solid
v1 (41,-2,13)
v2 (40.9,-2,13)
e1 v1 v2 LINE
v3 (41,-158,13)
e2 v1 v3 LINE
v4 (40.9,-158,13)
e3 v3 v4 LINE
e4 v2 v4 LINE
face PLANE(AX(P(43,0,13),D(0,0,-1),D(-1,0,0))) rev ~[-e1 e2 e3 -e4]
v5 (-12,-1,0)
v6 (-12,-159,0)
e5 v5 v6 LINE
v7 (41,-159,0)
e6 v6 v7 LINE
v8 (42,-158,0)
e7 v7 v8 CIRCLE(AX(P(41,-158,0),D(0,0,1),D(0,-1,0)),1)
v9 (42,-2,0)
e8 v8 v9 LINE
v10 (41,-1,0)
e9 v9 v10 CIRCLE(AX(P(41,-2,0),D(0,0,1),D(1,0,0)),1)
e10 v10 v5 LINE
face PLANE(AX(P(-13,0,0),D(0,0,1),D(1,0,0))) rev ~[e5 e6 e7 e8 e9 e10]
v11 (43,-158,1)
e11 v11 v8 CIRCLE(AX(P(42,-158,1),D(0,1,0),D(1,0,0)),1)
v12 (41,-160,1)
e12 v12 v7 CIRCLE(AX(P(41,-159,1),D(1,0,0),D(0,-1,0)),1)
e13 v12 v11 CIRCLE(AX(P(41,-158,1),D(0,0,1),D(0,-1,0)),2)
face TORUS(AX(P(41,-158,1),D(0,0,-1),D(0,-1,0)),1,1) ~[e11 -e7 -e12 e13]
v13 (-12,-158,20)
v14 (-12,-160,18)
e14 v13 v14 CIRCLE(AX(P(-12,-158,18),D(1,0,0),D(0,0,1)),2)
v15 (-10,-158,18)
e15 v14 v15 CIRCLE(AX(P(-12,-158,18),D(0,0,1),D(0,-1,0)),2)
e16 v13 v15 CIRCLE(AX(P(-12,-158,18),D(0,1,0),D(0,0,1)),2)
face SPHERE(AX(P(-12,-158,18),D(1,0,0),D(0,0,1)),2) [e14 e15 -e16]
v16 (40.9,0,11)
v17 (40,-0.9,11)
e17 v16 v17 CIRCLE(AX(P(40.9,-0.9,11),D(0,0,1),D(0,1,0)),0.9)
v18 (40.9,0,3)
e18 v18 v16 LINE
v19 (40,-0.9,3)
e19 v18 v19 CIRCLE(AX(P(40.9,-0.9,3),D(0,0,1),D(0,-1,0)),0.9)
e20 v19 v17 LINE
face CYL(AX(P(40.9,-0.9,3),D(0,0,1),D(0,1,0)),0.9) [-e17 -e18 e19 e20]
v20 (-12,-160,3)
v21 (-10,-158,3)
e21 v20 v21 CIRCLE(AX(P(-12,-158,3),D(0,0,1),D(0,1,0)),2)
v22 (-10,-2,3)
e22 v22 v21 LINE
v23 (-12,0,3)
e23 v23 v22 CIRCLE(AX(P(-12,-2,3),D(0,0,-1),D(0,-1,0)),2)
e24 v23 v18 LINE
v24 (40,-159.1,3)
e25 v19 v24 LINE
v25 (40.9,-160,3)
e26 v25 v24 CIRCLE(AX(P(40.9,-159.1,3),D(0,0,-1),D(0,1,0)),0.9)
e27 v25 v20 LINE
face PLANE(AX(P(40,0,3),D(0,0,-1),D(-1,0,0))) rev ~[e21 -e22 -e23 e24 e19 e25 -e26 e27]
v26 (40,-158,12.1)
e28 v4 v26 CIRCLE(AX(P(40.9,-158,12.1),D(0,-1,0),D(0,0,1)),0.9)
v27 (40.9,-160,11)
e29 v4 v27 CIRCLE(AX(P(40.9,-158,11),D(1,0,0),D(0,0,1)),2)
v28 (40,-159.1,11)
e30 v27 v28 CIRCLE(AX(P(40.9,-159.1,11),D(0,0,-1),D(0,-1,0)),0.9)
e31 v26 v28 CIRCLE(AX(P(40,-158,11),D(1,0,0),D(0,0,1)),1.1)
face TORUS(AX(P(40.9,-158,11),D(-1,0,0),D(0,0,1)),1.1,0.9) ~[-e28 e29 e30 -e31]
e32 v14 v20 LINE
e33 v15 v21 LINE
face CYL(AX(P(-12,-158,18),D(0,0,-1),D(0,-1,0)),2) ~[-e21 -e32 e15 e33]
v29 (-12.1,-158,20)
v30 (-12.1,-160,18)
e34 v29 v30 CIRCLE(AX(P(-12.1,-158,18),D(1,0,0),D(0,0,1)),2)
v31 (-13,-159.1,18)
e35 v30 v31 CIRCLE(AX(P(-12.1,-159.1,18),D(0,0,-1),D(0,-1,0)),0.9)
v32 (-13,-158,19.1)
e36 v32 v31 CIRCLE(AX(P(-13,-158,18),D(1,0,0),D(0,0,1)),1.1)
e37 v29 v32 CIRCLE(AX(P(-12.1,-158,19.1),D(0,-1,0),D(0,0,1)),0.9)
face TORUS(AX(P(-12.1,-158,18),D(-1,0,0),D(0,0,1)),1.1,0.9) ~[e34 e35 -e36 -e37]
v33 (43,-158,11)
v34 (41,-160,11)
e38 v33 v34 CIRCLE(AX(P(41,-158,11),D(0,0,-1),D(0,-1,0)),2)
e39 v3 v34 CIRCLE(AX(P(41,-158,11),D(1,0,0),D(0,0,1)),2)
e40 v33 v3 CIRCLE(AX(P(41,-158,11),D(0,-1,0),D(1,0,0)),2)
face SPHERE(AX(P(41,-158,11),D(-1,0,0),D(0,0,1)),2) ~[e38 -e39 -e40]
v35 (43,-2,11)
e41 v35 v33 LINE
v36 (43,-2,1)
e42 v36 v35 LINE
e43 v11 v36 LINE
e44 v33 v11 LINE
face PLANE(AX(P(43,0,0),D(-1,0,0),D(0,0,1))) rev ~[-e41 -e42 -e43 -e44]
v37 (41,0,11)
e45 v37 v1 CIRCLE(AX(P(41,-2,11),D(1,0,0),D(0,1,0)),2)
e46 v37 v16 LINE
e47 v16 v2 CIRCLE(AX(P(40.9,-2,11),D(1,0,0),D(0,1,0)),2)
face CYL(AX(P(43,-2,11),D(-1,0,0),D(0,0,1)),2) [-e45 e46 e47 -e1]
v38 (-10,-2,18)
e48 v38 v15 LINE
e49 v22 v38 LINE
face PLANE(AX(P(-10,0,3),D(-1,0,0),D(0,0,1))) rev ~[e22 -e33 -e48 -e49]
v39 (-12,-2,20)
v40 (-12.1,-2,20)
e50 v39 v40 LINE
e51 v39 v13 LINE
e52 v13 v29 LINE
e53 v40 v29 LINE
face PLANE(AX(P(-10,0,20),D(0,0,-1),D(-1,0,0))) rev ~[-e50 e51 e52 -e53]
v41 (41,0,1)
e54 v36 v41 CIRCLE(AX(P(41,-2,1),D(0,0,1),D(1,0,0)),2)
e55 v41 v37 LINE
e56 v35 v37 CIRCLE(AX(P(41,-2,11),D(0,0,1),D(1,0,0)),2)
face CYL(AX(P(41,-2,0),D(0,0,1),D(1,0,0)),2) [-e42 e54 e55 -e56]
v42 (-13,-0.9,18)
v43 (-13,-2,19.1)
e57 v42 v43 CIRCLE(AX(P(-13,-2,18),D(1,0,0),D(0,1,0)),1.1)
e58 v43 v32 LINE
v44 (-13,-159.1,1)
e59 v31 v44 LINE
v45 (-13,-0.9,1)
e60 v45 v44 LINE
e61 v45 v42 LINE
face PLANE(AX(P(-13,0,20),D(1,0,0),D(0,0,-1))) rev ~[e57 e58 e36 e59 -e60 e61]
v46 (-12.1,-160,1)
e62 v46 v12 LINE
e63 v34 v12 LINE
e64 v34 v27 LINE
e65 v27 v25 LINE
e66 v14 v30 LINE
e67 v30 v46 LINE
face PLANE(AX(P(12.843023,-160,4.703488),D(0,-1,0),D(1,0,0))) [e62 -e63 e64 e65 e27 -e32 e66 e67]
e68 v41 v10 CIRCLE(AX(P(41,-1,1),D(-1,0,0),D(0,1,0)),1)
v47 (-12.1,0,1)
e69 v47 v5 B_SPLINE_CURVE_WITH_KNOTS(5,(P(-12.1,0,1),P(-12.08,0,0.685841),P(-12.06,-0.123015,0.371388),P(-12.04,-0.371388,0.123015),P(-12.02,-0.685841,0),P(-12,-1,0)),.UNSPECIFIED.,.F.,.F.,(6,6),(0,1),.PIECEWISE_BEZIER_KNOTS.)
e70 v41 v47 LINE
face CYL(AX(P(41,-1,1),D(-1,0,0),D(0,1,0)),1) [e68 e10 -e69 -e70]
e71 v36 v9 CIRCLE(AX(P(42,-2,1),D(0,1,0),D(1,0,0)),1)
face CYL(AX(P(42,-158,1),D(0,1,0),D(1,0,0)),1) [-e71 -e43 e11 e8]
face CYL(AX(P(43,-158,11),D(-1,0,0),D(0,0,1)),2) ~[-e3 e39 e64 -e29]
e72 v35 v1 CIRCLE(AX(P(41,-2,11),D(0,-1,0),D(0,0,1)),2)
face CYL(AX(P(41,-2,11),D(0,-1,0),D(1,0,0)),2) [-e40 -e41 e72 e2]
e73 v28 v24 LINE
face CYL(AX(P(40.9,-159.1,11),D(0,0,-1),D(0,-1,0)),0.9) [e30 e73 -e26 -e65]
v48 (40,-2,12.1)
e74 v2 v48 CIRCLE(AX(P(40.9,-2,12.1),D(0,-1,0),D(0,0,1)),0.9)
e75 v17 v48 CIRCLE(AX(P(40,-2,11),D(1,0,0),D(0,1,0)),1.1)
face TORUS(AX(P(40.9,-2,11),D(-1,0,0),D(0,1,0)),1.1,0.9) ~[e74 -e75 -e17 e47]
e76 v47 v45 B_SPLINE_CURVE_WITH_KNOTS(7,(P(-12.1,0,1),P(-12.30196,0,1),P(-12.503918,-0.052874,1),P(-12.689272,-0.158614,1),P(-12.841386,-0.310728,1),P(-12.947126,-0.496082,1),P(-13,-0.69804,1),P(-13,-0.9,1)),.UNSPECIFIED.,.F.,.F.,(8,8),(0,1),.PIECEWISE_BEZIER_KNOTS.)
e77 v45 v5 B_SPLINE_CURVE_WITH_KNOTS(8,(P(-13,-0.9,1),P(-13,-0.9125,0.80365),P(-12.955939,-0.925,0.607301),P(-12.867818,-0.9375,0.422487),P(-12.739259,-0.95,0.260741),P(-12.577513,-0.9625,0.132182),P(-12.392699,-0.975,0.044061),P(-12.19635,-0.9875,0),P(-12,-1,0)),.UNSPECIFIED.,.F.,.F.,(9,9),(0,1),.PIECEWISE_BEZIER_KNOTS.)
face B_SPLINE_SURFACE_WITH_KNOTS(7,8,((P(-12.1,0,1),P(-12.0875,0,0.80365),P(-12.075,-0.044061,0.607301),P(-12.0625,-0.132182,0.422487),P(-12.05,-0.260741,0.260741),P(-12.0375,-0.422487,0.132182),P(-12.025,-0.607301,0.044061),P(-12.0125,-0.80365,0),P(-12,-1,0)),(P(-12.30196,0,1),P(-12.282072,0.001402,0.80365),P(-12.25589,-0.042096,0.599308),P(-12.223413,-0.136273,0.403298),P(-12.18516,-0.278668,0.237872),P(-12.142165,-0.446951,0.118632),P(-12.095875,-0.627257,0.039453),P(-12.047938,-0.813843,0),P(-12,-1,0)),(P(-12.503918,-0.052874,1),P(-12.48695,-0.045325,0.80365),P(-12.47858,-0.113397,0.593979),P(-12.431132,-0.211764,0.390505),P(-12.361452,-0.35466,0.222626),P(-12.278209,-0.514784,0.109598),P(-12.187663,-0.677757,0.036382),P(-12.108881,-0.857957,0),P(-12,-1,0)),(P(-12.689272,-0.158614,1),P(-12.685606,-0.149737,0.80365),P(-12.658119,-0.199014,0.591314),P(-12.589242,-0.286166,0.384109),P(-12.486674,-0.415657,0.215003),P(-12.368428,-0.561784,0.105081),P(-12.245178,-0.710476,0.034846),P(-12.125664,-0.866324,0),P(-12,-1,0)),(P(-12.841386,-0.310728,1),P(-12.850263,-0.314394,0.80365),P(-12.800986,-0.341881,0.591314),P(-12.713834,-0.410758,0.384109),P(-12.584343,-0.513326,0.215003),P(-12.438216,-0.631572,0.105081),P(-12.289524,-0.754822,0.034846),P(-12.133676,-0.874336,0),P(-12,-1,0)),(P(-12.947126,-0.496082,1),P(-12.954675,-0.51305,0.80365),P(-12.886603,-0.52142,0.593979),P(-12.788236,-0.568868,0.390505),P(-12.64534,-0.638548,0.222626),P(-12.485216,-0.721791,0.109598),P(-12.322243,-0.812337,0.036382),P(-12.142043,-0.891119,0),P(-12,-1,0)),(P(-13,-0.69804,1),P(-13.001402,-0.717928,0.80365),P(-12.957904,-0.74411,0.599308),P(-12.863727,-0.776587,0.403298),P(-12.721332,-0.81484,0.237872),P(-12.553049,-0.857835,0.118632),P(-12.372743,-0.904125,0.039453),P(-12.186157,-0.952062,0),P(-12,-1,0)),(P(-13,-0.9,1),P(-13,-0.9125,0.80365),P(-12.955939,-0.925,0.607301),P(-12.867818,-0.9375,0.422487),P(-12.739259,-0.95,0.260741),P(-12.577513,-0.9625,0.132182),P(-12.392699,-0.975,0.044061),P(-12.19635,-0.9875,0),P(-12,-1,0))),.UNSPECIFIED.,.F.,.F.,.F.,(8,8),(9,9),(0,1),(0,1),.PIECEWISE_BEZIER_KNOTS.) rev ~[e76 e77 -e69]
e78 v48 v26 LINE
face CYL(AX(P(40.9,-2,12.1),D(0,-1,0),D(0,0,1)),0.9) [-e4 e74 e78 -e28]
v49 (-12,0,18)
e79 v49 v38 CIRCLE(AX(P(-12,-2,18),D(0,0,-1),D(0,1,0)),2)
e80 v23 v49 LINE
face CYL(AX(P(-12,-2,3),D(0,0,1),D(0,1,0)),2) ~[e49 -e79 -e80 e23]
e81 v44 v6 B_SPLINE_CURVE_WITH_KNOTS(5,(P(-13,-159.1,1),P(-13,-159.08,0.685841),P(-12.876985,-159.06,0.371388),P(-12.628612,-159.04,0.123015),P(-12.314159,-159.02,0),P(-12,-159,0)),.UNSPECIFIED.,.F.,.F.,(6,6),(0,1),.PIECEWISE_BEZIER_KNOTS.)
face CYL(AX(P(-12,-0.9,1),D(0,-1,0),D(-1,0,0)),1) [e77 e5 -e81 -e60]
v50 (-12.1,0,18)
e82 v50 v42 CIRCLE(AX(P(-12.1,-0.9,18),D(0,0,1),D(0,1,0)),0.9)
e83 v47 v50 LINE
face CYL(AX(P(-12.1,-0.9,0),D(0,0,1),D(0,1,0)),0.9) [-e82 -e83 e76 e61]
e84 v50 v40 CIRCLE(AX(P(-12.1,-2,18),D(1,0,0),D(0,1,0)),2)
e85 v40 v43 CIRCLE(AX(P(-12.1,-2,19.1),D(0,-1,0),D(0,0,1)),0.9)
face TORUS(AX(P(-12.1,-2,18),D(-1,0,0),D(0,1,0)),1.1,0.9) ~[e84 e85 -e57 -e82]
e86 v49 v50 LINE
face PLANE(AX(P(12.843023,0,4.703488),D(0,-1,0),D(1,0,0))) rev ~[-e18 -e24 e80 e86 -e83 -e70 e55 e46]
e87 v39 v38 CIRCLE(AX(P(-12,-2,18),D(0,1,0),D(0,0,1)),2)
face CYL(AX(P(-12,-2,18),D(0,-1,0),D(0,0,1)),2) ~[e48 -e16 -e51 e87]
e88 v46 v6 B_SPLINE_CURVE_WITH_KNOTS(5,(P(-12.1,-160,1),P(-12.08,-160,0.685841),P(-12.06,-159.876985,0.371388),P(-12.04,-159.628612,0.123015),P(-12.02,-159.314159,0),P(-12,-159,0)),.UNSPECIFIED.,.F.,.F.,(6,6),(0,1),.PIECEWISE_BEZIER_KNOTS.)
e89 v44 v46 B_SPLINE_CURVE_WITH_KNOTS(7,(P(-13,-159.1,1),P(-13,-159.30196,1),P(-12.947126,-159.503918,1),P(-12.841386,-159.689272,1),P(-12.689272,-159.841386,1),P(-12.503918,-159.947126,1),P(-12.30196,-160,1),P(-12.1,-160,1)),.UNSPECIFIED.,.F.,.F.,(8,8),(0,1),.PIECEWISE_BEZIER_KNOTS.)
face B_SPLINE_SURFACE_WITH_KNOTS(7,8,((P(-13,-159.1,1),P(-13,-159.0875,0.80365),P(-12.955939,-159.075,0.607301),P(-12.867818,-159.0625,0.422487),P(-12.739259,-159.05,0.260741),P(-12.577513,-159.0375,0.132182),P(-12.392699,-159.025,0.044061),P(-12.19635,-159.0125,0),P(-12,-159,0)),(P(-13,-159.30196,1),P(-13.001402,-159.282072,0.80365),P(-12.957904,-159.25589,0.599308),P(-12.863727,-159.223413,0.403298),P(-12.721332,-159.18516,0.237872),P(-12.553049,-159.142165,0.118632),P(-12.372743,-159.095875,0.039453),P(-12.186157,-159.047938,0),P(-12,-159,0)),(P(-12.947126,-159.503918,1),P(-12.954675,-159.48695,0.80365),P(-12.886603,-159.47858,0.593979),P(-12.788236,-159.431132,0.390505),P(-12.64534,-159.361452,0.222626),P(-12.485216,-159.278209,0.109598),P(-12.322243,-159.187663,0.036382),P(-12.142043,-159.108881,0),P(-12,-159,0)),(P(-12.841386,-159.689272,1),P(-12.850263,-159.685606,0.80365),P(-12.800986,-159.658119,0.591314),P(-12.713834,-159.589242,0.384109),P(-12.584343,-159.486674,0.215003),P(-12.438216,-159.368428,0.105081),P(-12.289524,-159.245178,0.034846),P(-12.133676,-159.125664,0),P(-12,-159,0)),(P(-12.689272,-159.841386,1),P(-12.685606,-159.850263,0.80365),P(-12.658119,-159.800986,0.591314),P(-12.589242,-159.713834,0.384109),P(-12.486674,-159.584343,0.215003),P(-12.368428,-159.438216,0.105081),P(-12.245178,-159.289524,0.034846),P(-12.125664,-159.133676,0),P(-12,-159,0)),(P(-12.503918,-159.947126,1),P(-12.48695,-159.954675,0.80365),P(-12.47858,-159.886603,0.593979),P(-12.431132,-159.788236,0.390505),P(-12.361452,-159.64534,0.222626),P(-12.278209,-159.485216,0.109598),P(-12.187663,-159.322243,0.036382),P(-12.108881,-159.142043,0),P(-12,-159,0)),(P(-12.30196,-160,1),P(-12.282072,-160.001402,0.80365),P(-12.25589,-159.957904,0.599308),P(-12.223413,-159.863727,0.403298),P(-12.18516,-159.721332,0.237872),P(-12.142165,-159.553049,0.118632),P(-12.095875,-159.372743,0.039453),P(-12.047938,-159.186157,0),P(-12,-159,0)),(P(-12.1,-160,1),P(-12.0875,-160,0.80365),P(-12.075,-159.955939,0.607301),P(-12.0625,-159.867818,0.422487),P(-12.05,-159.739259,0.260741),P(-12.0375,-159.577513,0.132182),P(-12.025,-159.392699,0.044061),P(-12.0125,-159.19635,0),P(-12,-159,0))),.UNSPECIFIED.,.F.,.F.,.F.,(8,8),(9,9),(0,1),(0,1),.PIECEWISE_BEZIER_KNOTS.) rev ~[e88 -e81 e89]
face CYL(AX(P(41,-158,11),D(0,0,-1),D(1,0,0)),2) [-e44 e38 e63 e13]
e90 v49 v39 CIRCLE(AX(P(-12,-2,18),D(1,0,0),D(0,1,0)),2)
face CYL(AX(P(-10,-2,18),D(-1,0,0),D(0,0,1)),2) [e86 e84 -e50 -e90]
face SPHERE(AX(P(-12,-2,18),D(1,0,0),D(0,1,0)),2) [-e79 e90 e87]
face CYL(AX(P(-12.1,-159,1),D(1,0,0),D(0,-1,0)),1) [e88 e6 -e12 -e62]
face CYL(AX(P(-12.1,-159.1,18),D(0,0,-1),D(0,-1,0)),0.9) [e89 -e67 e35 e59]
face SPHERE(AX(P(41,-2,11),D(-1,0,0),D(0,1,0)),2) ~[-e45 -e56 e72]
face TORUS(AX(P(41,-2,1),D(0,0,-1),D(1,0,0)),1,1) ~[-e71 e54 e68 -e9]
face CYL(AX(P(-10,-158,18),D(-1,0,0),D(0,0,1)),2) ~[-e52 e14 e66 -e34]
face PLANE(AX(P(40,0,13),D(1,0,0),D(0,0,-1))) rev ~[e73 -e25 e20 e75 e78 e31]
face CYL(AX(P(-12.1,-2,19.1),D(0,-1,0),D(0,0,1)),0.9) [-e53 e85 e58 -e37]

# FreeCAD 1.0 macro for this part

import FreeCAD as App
import Part
import Sketcher


def edges_at(feature, points):
    """Names of the edges that pass closest to the given points."""
    edges = feature.Shape.Edges
    near = lambda p: min(range(len(edges)), key=lambda i: edges[i].distToShape(Part.Vertex(*p))[0])
    return sorted({f"Edge{near(p) + 1}" for p in points})


def add_polygon(sketch, points):
    """Adds a closed chain of lines whose ends are joined by coincident constraints."""
    first, n = sketch.GeometryCount, len(points)
    for a, b in zip(points, points[1:] + points[:1]):
        sketch.addGeometry(Part.LineSegment(App.Vector(*a, 0), App.Vector(*b, 0)), False)
    for i in range(n):
        sketch.addConstraint(Sketcher.Constraint("Coincident", first + i, 2, first + (i + 1) % n, 1))

doc = App.newDocument("Part")
body = doc.addObject("PartDesign::Body", "Body")

# Sketch on XZ plane
sketch1 = body.newObject("Sketcher::SketchObject", "Sketch")
sketch1.AttachmentSupport = (doc.getObject("XZ_Plane"), [""])
sketch1.MapMode = "FlatFace"
add_polygon(sketch1, [(-13, 20), (-13, 0), (43, 0), (43, 13), (40, 13), (40, 3), (-10, 3), (-10, 20)])  # lines 0-7
sketch1.addConstraint(Sketcher.Constraint("Vertical", 0))
sketch1.addConstraint(Sketcher.Constraint("Horizontal", 1))
sketch1.addConstraint(Sketcher.Constraint("Vertical", 2))
sketch1.addConstraint(Sketcher.Constraint("Horizontal", 3))
sketch1.addConstraint(Sketcher.Constraint("Vertical", 4))
sketch1.addConstraint(Sketcher.Constraint("Horizontal", 5))
sketch1.addConstraint(Sketcher.Constraint("Vertical", 6))
sketch1.addConstraint(Sketcher.Constraint("Horizontal", 7))
sketch1.addConstraint(Sketcher.Constraint("PointOnObject", 0, 2, -1))
sketch1.addConstraint(Sketcher.Constraint("Equal", 3, 7))
sketch1.addConstraint(Sketcher.Constraint("DistanceX", 1, 1, 1, 2, 56.0))
sketch1.addConstraint(Sketcher.Constraint("DistanceX", 3, 2, 3, 1, 3.0))
sketch1.addConstraint(Sketcher.Constraint("DistanceY", 0, 2, 0, 1, 20.0))
sketch1.addConstraint(Sketcher.Constraint("DistanceY", 2, 1, 2, 2, 13.0))
sketch1.addConstraint(Sketcher.Constraint("DistanceY", 4, 2, 4, 1, 10.0))
sketch1.addConstraint(Sketcher.Constraint("DistanceX", 0, 2, -1, 1, 13.0))
pad1 = body.newObject("PartDesign::Pad", "Pad")
pad1.Profile = sketch1
pad1.Length = 160
doc.recompute()

fillet = body.newObject("PartDesign::Fillet", "Fillet")
fillet.Base = (pad1, edges_at(pad1, [
    (-11.5, -160, 20),
    (41.5, -160, 13),
    (-11.5, 0, 20),
    (41.5, 0, 13),
]))
fillet.Radius = 2
doc.recompute()

fillet2 = body.newObject("PartDesign::Fillet", "Fillet001")
fillet2.Base = (fillet, edges_at(fillet, [(43, -80, 13), (-10, -80, 20)]))
fillet2.Radius = 2
doc.recompute()

fillet3 = body.newObject("PartDesign::Fillet", "Fillet002")
fillet3.Base = (fillet2, edges_at(fillet2, [(40, -80, 13), (-13, -80, 20)]))
fillet3.Radius = 0.9
doc.recompute()

fillet4 = body.newObject("PartDesign::Fillet", "Fillet003")
fillet4.Base = (fillet3, edges_at(fillet3, [(14.45, -160, 0)]))
fillet4.Radius = 1

doc.recompute()
